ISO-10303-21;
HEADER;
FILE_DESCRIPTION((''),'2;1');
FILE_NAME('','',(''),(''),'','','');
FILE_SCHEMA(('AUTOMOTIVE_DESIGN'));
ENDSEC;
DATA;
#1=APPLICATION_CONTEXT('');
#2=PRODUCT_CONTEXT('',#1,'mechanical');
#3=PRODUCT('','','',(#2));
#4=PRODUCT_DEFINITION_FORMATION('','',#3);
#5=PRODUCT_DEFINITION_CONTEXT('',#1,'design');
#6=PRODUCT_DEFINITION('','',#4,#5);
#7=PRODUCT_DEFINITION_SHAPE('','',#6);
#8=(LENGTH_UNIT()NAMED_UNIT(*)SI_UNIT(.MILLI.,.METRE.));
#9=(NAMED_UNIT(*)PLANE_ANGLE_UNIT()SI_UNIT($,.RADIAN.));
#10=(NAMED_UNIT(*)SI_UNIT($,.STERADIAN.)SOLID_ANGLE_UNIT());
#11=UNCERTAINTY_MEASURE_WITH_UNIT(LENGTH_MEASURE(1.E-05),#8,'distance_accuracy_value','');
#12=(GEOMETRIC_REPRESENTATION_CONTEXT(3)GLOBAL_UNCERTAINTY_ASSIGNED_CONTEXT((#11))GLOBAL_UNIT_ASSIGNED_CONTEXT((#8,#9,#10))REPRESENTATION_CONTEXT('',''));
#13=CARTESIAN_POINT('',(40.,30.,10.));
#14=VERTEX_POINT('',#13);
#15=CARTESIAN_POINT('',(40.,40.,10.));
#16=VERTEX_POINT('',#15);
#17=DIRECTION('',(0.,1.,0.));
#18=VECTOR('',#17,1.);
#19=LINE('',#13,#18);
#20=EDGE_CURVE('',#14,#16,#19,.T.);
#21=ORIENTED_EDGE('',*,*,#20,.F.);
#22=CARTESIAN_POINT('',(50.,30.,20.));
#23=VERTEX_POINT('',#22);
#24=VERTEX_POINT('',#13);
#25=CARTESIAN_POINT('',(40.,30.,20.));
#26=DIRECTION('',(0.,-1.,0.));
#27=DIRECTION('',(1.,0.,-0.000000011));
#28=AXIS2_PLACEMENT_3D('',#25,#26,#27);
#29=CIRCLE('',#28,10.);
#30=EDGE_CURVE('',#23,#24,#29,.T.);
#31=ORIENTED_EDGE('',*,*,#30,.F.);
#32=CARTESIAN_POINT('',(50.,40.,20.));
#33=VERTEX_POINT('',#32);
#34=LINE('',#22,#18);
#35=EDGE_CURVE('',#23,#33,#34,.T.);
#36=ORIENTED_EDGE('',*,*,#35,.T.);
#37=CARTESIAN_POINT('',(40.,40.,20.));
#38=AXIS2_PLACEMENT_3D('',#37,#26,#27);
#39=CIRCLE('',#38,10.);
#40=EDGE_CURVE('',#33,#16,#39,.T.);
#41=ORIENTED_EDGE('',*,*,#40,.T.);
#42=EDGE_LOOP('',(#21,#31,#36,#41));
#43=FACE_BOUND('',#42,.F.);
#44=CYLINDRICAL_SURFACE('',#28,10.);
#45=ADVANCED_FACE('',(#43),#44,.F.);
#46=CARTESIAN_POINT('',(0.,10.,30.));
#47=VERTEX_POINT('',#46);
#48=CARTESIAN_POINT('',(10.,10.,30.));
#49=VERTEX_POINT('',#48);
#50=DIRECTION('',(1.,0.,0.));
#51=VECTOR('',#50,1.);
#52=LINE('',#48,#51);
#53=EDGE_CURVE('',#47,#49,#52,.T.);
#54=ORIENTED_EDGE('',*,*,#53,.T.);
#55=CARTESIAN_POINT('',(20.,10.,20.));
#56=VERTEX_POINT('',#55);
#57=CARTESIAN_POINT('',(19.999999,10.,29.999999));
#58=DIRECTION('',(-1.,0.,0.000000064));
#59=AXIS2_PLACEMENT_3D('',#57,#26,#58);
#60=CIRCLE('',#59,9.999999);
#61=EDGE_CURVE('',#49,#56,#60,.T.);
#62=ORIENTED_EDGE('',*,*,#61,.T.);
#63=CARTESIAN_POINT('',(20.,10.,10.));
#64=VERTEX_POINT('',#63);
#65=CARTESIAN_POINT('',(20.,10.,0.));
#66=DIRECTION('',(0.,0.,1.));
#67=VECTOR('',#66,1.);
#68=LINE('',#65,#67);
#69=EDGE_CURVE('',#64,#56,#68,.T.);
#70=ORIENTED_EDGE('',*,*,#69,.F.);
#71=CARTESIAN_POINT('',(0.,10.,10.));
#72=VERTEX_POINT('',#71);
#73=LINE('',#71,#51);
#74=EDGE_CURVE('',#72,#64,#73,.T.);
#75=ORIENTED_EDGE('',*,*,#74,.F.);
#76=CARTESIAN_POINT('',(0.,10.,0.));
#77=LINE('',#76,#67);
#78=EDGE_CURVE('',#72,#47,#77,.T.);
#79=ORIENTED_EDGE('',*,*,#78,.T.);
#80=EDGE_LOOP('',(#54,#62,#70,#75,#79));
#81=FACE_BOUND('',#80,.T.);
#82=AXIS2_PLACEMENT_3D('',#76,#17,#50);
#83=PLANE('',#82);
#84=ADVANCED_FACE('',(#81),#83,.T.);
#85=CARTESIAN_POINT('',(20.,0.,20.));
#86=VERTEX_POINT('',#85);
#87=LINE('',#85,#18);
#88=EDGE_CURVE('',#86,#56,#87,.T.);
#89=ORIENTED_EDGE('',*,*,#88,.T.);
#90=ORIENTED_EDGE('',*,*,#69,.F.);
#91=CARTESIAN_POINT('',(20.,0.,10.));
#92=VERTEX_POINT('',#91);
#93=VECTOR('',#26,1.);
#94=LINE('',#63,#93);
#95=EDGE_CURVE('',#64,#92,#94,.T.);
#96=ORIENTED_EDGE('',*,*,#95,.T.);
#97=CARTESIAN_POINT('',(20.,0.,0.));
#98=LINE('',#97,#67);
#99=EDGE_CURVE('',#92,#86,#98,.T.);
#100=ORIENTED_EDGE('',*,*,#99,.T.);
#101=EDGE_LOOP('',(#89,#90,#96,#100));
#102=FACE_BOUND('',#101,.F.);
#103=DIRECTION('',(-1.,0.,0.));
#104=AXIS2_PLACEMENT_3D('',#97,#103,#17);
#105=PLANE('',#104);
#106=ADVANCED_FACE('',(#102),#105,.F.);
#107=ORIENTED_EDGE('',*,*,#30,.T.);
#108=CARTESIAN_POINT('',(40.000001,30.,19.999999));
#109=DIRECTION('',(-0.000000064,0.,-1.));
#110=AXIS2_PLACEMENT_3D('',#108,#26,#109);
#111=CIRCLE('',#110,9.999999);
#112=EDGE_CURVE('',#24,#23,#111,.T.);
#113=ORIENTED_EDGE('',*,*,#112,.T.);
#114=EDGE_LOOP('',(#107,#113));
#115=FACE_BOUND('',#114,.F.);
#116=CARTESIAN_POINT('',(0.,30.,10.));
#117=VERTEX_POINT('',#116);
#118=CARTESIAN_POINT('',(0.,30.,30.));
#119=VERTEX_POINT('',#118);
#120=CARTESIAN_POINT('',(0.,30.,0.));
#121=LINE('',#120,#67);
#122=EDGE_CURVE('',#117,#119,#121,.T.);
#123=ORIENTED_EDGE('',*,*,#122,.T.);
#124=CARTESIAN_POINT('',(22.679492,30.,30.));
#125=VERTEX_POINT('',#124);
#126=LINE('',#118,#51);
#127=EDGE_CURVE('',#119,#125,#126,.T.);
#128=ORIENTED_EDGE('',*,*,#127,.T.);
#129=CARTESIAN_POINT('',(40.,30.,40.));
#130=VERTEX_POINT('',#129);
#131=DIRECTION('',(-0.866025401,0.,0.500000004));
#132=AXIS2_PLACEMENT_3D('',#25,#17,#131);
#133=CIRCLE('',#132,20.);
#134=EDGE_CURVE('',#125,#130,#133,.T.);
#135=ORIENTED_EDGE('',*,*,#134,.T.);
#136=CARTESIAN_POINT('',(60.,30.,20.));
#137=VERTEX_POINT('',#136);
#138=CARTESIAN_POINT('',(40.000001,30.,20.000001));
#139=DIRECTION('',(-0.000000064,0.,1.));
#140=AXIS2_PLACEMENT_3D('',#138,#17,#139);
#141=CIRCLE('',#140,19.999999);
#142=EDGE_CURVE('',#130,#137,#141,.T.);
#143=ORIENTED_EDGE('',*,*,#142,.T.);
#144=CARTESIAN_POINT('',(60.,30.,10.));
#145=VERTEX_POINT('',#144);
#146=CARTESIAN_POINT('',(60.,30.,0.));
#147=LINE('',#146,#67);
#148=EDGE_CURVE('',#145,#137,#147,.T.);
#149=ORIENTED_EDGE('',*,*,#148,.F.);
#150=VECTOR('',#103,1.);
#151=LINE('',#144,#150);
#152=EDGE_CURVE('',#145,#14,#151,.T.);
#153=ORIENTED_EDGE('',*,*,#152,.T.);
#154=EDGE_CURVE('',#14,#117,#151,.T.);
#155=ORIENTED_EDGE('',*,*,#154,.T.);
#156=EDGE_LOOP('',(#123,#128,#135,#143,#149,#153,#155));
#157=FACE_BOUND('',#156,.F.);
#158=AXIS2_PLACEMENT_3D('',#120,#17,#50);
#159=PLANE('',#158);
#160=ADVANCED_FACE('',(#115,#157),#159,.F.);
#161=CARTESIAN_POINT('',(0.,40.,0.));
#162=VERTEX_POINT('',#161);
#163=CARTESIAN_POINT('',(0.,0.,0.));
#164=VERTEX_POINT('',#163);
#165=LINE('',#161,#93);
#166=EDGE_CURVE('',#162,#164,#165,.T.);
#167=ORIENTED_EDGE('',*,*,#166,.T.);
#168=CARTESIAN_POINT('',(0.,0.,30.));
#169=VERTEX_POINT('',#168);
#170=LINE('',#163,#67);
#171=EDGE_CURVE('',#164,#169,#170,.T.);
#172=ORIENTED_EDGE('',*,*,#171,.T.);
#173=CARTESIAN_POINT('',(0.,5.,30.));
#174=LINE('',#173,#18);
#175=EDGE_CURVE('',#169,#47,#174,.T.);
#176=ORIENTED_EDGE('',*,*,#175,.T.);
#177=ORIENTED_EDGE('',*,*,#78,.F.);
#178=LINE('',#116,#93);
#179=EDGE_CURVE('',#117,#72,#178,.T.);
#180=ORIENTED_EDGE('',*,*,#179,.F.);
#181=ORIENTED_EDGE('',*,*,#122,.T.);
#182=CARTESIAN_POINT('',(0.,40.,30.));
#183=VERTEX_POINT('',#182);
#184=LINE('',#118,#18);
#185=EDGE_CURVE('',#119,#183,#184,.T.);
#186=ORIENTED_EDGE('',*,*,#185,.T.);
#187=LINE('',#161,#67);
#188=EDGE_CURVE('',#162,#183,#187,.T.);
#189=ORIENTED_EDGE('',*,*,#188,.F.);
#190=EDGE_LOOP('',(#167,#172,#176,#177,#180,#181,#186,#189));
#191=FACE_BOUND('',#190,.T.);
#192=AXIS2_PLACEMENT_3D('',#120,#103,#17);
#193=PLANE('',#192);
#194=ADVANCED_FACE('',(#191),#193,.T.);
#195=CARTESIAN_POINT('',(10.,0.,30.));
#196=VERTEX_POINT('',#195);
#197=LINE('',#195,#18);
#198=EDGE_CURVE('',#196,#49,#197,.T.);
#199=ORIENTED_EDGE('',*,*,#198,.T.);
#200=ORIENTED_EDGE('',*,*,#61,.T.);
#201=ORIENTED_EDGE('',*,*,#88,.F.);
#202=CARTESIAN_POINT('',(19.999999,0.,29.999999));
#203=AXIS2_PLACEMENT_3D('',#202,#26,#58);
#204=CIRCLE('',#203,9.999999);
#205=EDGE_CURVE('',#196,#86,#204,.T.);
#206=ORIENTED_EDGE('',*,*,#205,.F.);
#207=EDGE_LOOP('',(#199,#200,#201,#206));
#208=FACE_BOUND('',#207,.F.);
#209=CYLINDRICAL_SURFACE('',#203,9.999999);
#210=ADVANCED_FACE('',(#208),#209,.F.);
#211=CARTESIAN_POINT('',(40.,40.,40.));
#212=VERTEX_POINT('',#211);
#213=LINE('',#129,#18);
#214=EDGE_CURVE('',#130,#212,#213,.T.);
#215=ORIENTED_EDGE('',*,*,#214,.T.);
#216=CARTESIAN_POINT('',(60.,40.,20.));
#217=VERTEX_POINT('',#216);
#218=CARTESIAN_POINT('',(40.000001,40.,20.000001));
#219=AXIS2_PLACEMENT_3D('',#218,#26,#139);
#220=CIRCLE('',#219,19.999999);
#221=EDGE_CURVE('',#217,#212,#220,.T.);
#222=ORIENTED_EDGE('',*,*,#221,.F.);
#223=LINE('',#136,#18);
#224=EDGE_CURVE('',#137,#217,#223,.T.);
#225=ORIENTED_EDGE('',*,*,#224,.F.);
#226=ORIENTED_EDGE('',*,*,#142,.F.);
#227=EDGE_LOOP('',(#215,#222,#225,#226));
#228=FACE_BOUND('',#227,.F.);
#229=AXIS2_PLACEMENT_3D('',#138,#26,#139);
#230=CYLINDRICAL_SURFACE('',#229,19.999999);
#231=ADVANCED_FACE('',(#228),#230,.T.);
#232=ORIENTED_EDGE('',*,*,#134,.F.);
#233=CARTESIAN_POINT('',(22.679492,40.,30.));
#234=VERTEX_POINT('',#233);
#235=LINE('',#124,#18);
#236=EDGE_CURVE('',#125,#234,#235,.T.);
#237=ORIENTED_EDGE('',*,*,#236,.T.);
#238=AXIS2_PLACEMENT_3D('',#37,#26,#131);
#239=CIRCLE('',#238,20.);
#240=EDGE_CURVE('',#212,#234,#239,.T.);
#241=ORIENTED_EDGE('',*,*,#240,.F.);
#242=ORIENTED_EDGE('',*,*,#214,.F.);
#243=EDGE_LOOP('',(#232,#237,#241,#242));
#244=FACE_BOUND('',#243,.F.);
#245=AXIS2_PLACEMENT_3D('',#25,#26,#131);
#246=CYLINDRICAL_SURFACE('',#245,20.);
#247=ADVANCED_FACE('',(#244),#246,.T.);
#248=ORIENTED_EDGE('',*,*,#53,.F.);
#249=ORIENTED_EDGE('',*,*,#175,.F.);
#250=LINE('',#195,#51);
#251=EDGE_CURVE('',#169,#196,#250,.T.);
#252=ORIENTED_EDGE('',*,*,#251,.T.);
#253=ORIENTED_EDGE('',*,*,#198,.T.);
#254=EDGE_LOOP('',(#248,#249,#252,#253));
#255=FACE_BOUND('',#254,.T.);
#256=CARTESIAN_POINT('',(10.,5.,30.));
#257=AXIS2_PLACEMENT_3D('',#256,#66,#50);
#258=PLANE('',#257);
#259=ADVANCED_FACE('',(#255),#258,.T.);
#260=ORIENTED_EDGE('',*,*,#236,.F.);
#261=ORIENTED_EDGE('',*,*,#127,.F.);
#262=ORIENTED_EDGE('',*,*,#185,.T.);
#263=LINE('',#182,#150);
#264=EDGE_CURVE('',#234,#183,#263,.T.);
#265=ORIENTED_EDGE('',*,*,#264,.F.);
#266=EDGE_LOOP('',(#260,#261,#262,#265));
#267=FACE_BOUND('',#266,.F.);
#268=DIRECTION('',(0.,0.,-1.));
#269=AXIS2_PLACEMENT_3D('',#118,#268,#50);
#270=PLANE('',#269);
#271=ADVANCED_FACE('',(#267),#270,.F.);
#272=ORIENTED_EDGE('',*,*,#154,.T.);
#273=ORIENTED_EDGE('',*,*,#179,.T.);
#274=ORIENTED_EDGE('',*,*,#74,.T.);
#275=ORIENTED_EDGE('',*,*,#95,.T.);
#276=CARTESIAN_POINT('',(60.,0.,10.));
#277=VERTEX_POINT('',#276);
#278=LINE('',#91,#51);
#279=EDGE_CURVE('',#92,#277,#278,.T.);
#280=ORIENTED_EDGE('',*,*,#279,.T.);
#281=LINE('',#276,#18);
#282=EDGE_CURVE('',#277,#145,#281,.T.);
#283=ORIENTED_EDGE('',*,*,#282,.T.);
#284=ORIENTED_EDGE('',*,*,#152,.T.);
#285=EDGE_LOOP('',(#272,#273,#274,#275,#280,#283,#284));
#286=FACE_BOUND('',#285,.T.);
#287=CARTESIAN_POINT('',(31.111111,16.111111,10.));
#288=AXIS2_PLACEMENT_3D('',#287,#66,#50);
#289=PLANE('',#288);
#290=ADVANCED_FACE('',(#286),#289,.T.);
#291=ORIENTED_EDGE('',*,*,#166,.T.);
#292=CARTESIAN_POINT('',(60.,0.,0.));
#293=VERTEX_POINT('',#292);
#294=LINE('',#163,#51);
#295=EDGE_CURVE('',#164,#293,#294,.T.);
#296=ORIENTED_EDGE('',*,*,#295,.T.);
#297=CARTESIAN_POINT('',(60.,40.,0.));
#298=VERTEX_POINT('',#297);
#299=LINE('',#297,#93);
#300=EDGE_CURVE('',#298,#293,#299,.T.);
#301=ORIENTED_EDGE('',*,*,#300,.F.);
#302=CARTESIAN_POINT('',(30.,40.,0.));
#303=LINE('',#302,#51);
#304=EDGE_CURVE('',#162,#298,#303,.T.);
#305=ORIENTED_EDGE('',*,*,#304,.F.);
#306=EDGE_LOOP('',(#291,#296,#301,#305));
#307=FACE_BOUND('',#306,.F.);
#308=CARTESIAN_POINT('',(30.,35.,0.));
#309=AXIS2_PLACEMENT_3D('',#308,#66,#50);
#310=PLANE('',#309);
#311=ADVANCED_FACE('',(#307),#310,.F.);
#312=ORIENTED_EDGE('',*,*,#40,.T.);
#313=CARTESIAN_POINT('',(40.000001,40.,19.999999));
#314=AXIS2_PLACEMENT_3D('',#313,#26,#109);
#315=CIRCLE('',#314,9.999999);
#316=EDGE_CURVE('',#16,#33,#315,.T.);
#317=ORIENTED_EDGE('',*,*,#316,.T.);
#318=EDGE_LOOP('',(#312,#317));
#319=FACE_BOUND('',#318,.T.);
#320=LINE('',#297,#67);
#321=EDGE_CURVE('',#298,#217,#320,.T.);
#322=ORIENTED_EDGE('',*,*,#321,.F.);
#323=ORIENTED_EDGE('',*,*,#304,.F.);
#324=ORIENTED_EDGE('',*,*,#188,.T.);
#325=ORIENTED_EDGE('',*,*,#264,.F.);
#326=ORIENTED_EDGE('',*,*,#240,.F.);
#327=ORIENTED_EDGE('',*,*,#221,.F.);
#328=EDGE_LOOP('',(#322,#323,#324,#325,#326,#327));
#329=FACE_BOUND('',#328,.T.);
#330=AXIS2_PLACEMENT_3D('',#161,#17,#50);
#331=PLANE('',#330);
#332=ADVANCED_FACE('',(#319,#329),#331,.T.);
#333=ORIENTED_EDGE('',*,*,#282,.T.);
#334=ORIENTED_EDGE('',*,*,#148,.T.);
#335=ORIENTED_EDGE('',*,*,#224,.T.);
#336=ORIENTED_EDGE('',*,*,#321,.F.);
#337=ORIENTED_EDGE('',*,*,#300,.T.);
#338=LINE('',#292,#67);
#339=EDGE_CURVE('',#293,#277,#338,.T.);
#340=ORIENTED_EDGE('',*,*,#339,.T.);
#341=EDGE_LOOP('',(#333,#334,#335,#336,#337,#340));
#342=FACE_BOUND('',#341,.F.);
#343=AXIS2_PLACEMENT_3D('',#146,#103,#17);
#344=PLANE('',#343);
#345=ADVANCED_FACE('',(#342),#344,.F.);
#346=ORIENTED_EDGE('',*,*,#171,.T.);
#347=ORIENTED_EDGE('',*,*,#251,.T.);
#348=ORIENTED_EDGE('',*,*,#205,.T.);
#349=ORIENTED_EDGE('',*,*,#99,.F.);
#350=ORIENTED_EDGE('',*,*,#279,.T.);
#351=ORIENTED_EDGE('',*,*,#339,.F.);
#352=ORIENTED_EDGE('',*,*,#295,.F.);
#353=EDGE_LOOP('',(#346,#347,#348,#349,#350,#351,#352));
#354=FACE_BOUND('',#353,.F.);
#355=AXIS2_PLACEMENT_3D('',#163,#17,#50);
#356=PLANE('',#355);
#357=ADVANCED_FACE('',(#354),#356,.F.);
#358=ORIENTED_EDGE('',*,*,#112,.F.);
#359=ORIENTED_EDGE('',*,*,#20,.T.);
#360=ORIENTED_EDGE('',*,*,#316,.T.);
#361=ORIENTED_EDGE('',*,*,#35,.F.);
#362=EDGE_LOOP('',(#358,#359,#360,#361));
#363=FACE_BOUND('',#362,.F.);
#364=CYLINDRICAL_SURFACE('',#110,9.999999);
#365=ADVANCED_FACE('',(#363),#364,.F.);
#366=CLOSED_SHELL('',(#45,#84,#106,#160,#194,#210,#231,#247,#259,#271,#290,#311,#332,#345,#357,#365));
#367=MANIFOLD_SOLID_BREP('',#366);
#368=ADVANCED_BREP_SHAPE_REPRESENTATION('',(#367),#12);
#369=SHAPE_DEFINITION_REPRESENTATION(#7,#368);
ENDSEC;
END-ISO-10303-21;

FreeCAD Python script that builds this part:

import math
import FreeCAD as App
import Part
import Sketcher

V = App.Vector
Q = App.Units.Quantity

doc = App.newDocument("Part")
body = doc.addObject("PartDesign::Body", "Body")

# Sketch on XY plane
sketch1 = doc.addObject("Sketcher::SketchObject", "Sketch")
body.addObject(sketch1)
sketch1.AttachmentSupport = (doc.XY_Plane, [""])
sketch1.MapMode = "FlatFace"
sketch1.addGeometry(Part.LineSegment(V(20, 10, 0), V(20, 0, 0)), False)
sketch1.addGeometry(Part.LineSegment(V(20, 0, 0), V(60, 0, 0)), False)
sketch1.addGeometry(Part.LineSegment(V(60, 0, 0), V(60, 30, 0)), False)
sketch1.addGeometry(Part.LineSegment(V(60, 30, 0), V(0, 30, 0)), False)
sketch1.addGeometry(Part.LineSegment(V(0, 30, 0), V(0, 10, 0)), False)
sketch1.addGeometry(Part.LineSegment(V(0, 10, 0), V(20, 10, 0)), False)
sketch1.addConstraint(Sketcher.Constraint("Coincident", 0, 2, 1, 1))
sketch1.addConstraint(Sketcher.Constraint("Coincident", 1, 2, 2, 1))
sketch1.addConstraint(Sketcher.Constraint("Coincident", 2, 2, 3, 1))
sketch1.addConstraint(Sketcher.Constraint("Coincident", 3, 2, 4, 1))
sketch1.addConstraint(Sketcher.Constraint("Coincident", 4, 2, 5, 1))
sketch1.addConstraint(Sketcher.Constraint("Coincident", 5, 2, 0, 1))
sketch1.addConstraint(Sketcher.Constraint("Vertical", 0))
sketch1.addConstraint(Sketcher.Constraint("Horizontal", 1))
sketch1.addConstraint(Sketcher.Constraint("Vertical", 2))
sketch1.addConstraint(Sketcher.Constraint("Horizontal", 3))
sketch1.addConstraint(Sketcher.Constraint("Vertical", 4))
sketch1.addConstraint(Sketcher.Constraint("Horizontal", 5))
sketch1.addConstraint(Sketcher.Constraint("PointOnObject", 0, 2, -1))
sketch1.addConstraint(Sketcher.Constraint("PointOnObject", 3, 2, -2))
sketch1.addConstraint(Sketcher.Constraint("Equal", 5, 4))
sketch1.addConstraint(Sketcher.Constraint("DistanceX", 1, 1, 1, 2, Q("40 mm")))
sketch1.addConstraint(Sketcher.Constraint("DistanceX", 3, 2, 3, 1, Q("60 mm")))
sketch1.addConstraint(Sketcher.Constraint("DistanceY", 0, 2, 0, 1, Q("10 mm")))
pad1 = doc.addObject("PartDesign::Pad", "Pad")
body.addObject(pad1)
pad1.Profile = sketch1
pad1.Length = 10

# Sketch on XY plane
sketch2 = doc.addObject("Sketcher::SketchObject", "Sketch001")
body.addObject(sketch2)
sketch2.AttachmentSupport = (doc.XY_Plane, [""])
sketch2.MapMode = "FlatFace"
sketch2.addGeometry(Part.LineSegment(V(0, 10, 0), V(0, 0, 0)), False)
sketch2.addGeometry(Part.LineSegment(V(0, 0, 0), V(20, 0, 0)), False)
sketch2.addGeometry(Part.LineSegment(V(20, 0, 0), V(20, 10, 0)), False)
sketch2.addGeometry(Part.LineSegment(V(20, 10, 0), V(0, 10, 0)), False)
sketch2.addConstraint(Sketcher.Constraint("Coincident", 0, 2, 1, 1))
sketch2.addConstraint(Sketcher.Constraint("Coincident", 1, 2, 2, 1))
sketch2.addConstraint(Sketcher.Constraint("Coincident", 2, 2, 3, 1))
sketch2.addConstraint(Sketcher.Constraint("Coincident", 3, 2, 0, 1))
sketch2.addConstraint(Sketcher.Constraint("Vertical", 0))
sketch2.addConstraint(Sketcher.Constraint("Horizontal", 1))
sketch2.addConstraint(Sketcher.Constraint("Vertical", 2))
sketch2.addConstraint(Sketcher.Constraint("Horizontal", 3))
sketch2.addConstraint(Sketcher.Constraint("Coincident", 0, 2, -1, 1))
sketch2.addConstraint(Sketcher.Constraint("DistanceX", 1, 1, 1, 2, Q("20 mm")))
sketch2.addConstraint(Sketcher.Constraint("DistanceY", 0, 2, 0, 1, Q("10 mm")))
pad2 = doc.addObject("PartDesign::Pad", "Pad001")
body.addObject(pad2)
pad2.Profile = sketch2
pad2.Length = 30

# Sketch on XY plane
sketch3 = doc.addObject("Sketcher::SketchObject", "Sketch002")
body.addObject(sketch3)
sketch3.AttachmentSupport = (doc.XY_Plane, [""])
sketch3.MapMode = "FlatFace"
sketch3.addGeometry(Part.LineSegment(V(0, 40, 0), V(0, 30, 0)), False)
sketch3.addGeometry(Part.LineSegment(V(0, 30, 0), V(60, 30, 0)), False)
sketch3.addGeometry(Part.LineSegment(V(60, 30, 0), V(60, 40, 0)), False)
sketch3.addGeometry(Part.LineSegment(V(60, 40, 0), V(0, 40, 0)), False)
sketch3.addConstraint(Sketcher.Constraint("Coincident", 0, 2, 1, 1))
sketch3.addConstraint(Sketcher.Constraint("Coincident", 1, 2, 2, 1))
sketch3.addConstraint(Sketcher.Constraint("Coincident", 2, 2, 3, 1))
sketch3.addConstraint(Sketcher.Constraint("Coincident", 3, 2, 0, 1))
sketch3.addConstraint(Sketcher.Constraint("Vertical", 0))
sketch3.addConstraint(Sketcher.Constraint("Horizontal", 1))
sketch3.addConstraint(Sketcher.Constraint("Vertical", 2))
sketch3.addConstraint(Sketcher.Constraint("Horizontal", 3))
sketch3.addConstraint(Sketcher.Constraint("PointOnObject", 0, 2, -2))
sketch3.addConstraint(Sketcher.Constraint("DistanceX", 1, 1, 1, 2, Q("60 mm")))
sketch3.addConstraint(Sketcher.Constraint("DistanceY", 0, 2, 0, 1, Q("10 mm")))
sketch3.addConstraint(Sketcher.Constraint("DistanceY", -1, 1, 0, 2, Q("30 mm")))
pad3 = doc.addObject("PartDesign::Pad", "Pad002")
body.addObject(pad3)
pad3.Profile = sketch3
pad3.Length = 40

# Sketch on XZ plane
sketch4 = doc.addObject("Sketcher::SketchObject", "Sketch003")
body.addObject(sketch4)
sketch4.AttachmentSupport = (doc.XZ_Plane, [""])
sketch4.MapMode = "FlatFace"
sketch4.addGeometry(Part.LineSegment(V(20, 30, 0), V(10, 30, 0)), False)
sketch4.addGeometry(Part.ArcOfCircle(Part.Circle(V(19.999999, 29.999999, 0), V(0, 0, 1), 9.999999), math.radians(179.999996), math.radians(270.000004)), False)
sketch4.addGeometry(Part.LineSegment(V(20, 20, 0), V(20, 30, 0)), False)
sketch4.addConstraint(Sketcher.Constraint("Coincident", 0, 2, 1, 1))
sketch4.addConstraint(Sketcher.Constraint("Coincident", 1, 2, 2, 1))
sketch4.addConstraint(Sketcher.Constraint("Coincident", 2, 2, 0, 1))
sketch4.addConstraint(Sketcher.Constraint("Horizontal", 0))
sketch4.addConstraint(Sketcher.Constraint("Vertical", 2))
sketch4.addConstraint(Sketcher.Constraint("Coincident", 2, 2, 1, 3))
sketch4.addConstraint(Sketcher.Constraint("Radius", 1, Q("9.999999 mm")))
sketch4.addConstraint(Sketcher.Constraint("DistanceX", -1, 1, 1, 3, Q("19.999999 mm")))
sketch4.addConstraint(Sketcher.Constraint("DistanceY", -1, 1, 1, 3, Q("29.999999 mm")))
pocket1 = doc.addObject("PartDesign::Pocket", "Pocket")
body.addObject(pocket1)
pocket1.Profile = sketch4
pocket1.Length = 10

# Sketch on XZ plane
sketch5 = doc.addObject("Sketcher::SketchObject", "Sketch004")
body.addObject(sketch5)
sketch5.AttachmentSupport = (doc.XZ_Plane, [""])
sketch5.MapMode = "FlatFace"
sketch5.AttachmentOffset = App.Placement(V(0, 0, -30), App.Rotation())
sketch5.addGeometry(Part.ArcOfCircle(Part.Circle(V(40, 20, 0), V(0, 0, 1), 20), math.radians(90.000001), math.radians(150)), False)
sketch5.addGeometry(Part.LineSegment(V(40, 40, 0), V(0, 40, 0)), False)
sketch5.addGeometry(Part.LineSegment(V(0, 40, 0), V(0, 30, 0)), False)
sketch5.addGeometry(Part.LineSegment(V(0, 30, 0), V(22.679492, 30, 0)), False)
sketch5.addGeometry(Part.ArcOfCircle(Part.Circle(V(40.000001, 20.000001, 0), V(0, 0, 1), 19.999999), math.radians(-0.000004), math.radians(90.000004)), False)
sketch5.addGeometry(Part.LineSegment(V(60, 20, 0), V(60, 40, 0)), False)
sketch5.addGeometry(Part.LineSegment(V(60, 40, 0), V(40, 40, 0)), False)
sketch5.addConstraint(Sketcher.Constraint("Tangent", 0, 1, 1, 1))
sketch5.addConstraint(Sketcher.Constraint("Coincident", 1, 2, 2, 1))
sketch5.addConstraint(Sketcher.Constraint("Coincident", 2, 2, 3, 1))
sketch5.addConstraint(Sketcher.Constraint("Coincident", 3, 2, 0, 2))
sketch5.addConstraint(Sketcher.Constraint("Tangent", 4, 1, 5, 1))
sketch5.addConstraint(Sketcher.Constraint("Coincident", 5, 2, 6, 1))
sketch5.addConstraint(Sketcher.Constraint("Tangent", 6, 2, 4, 2))
sketch5.addConstraint(Sketcher.Constraint("Horizontal", 1))
sketch5.addConstraint(Sketcher.Constraint("Vertical", 2))
sketch5.addConstraint(Sketcher.Constraint("Horizontal", 3))
sketch5.addConstraint(Sketcher.Constraint("Vertical", 5))
sketch5.addConstraint(Sketcher.Constraint("Horizontal", 6))
sketch5.addConstraint(Sketcher.Constraint("Coincident", 4, 3, 0, 3))
sketch5.addConstraint(Sketcher.Constraint("Equal", 0, 4))
sketch5.addConstraint(Sketcher.Constraint("PointOnObject", 1, 2, -2))
sketch5.addConstraint(Sketcher.Constraint("Radius", 0, Q("20 mm")))
sketch5.addConstraint(Sketcher.Constraint("DistanceX", 1, 2, 1, 1, Q("40 mm")))
sketch5.addConstraint(Sketcher.Constraint("DistanceY", 2, 2, 2, 1, Q("10 mm")))
sketch5.addConstraint(Sketcher.Constraint("DistanceY", -1, 1, 0, 3, Q("20 mm")))
pocket2 = doc.addObject("PartDesign::Pocket", "Pocket001")
body.addObject(pocket2)
pocket2.Profile = sketch5
pocket2.Type = "ThroughAll"

# Sketch on XZ plane
sketch6 = doc.addObject("Sketcher::SketchObject", "Sketch005")
body.addObject(sketch6)
sketch6.AttachmentSupport = (doc.XZ_Plane, [""])
sketch6.MapMode = "FlatFace"
sketch6.AttachmentOffset = App.Placement(V(0, 0, -30), App.Rotation())
sketch6.addGeometry(Part.ArcOfCircle(Part.Circle(V(40, 20, 0), V(0, 0, 1), 10), math.radians(-0.000001), math.radians(270.000001)), False)
sketch6.addGeometry(Part.ArcOfCircle(Part.Circle(V(40.000001, 19.999999, 0), V(0, 0, 1), 9.999999), math.radians(-90.000004), math.radians(0.000004)), False)
sketch6.addConstraint(Sketcher.Constraint("Tangent", 0, 1, 1, 2))
sketch6.addConstraint(Sketcher.Constraint("Coincident", 1, 1, 0, 2))
sketch6.addConstraint(Sketcher.Constraint("Horizontal", 1, 3, 0, 1))
sketch6.addConstraint(Sketcher.Constraint("Vertical", 0, 3, 1, 1))
sketch6.addConstraint(Sketcher.Constraint("Radius", 0, Q("10 mm")))
sketch6.addConstraint(Sketcher.Constraint("DistanceX", -1, 1, 0, 3, Q("40 mm")))
sketch6.addConstraint(Sketcher.Constraint("DistanceY", -1, 1, 0, 3, Q("20 mm")))
pocket3 = doc.addObject("PartDesign::Pocket", "Pocket002")
body.addObject(pocket3)
pocket3.Profile = sketch6
pocket3.Type = "ThroughAll"

doc.recompute()
